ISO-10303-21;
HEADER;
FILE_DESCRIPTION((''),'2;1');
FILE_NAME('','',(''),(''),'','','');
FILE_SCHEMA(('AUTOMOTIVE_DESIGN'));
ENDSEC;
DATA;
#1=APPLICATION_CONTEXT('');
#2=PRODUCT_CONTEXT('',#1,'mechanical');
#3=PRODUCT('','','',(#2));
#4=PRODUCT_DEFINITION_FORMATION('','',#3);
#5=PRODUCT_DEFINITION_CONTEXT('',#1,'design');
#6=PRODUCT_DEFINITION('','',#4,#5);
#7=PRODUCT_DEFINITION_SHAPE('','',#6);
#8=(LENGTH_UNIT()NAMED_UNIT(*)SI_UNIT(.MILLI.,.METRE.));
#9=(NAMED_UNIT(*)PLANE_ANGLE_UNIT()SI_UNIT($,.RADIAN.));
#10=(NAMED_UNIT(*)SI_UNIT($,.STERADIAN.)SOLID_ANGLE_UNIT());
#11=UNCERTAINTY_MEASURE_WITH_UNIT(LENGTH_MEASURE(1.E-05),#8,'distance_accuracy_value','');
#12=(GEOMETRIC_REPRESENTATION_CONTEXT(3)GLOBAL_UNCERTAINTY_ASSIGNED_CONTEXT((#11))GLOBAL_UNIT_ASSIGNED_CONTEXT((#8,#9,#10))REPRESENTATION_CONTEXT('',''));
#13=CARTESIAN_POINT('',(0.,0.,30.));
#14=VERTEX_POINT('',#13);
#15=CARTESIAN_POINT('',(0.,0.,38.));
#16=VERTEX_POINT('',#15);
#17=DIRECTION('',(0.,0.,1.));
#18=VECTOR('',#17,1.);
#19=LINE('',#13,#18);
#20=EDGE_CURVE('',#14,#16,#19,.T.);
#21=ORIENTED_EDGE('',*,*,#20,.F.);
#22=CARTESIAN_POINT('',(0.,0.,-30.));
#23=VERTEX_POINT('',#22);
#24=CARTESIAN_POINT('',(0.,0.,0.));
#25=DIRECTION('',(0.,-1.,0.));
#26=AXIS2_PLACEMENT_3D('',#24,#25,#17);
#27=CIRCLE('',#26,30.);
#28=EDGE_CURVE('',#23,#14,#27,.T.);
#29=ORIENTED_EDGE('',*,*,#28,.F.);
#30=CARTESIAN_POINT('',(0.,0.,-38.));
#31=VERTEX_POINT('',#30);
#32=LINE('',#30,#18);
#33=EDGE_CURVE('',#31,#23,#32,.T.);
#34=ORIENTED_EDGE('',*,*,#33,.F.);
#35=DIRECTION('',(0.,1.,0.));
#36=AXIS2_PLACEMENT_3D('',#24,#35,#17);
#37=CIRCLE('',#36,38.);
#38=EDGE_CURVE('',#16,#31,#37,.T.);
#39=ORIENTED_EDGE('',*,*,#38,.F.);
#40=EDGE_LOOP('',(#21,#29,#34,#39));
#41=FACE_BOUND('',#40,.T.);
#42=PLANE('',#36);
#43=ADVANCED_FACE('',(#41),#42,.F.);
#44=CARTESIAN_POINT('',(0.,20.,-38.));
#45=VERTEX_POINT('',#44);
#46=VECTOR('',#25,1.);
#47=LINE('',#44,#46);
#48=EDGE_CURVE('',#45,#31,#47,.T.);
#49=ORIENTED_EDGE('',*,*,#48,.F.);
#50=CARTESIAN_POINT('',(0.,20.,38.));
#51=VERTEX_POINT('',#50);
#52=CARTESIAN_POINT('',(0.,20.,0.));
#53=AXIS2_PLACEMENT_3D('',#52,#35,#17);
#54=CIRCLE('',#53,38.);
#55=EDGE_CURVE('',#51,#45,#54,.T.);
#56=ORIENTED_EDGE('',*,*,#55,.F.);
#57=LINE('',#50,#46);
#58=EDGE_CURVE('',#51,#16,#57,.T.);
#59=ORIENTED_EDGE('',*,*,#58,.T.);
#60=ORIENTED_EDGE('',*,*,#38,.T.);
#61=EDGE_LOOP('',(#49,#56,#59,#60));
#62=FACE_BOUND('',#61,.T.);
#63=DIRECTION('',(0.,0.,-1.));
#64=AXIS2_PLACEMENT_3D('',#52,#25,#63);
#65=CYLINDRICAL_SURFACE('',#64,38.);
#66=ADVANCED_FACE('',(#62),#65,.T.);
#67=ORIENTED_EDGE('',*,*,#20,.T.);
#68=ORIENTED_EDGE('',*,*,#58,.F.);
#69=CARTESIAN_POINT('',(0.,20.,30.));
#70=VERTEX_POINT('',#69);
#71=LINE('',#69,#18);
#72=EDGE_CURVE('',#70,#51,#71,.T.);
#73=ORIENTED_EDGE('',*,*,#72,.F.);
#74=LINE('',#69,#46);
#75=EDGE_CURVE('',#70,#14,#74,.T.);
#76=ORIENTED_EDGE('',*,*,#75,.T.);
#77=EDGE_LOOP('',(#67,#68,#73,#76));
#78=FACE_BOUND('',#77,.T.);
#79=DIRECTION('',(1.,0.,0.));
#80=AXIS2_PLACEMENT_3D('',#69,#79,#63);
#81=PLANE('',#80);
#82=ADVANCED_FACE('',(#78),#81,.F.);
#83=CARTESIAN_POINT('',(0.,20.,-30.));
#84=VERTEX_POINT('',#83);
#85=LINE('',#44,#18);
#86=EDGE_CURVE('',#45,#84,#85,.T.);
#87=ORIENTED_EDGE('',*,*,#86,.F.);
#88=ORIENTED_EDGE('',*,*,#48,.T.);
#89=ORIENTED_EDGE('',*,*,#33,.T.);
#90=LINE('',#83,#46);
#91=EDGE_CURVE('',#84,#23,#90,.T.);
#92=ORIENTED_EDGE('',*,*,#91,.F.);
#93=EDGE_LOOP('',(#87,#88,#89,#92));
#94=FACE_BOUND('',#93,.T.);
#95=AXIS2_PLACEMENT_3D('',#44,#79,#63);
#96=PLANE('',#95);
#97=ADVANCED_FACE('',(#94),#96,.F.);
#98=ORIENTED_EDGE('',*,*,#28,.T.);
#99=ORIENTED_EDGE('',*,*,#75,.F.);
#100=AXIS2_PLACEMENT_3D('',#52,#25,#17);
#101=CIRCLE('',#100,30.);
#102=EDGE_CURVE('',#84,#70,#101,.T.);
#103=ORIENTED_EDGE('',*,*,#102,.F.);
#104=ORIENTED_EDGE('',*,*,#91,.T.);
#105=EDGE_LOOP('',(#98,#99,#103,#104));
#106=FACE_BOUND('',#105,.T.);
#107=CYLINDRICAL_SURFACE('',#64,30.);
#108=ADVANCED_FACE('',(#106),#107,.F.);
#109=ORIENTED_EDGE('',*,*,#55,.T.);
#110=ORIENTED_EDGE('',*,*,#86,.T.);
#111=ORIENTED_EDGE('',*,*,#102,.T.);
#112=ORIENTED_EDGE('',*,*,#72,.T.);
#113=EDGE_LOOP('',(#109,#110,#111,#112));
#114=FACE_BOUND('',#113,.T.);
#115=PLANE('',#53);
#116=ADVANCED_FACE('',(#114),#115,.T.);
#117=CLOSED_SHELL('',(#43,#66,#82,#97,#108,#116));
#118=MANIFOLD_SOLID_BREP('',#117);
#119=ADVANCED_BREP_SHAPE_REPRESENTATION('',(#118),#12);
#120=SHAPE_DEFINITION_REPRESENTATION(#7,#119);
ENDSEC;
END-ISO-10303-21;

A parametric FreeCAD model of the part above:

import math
import FreeCAD as App
import Part
import Sketcher

V = App.Vector

doc = App.newDocument("Part")
params = doc.addObject("Spreadsheet::Sheet", "Params")
for row, (alias, value) in enumerate([
    ("sketch1_radius", "30 mm"),
    ("sketch1_radius2", "38 mm"),
    ("pad1_length", "20 mm"),
], start=1):
    params.set(f"A{row}", alias)
    params.set(f"B{row}", "=" + value)
    params.setAlias(f"B{row}", alias)

body = doc.addObject("PartDesign::Body", "Body")

sketch1 = doc.addObject("Sketcher::SketchObject", "Sketch")
body.addObject(sketch1)
sketch1.AttachmentSupport = (doc.XZ_Plane, [""])
sketch1.MapMode = "FlatFace"
sketch1.addGeometry([
    Part.LineSegment(V(0, -38, 0), V(0, -30, 0)),
    Part.ArcOfCircle(Part.Circle(V(0, 0, 0), V(0, 0, 1), 30), math.radians(-90), math.radians(90)),
    Part.LineSegment(V(0, 30, 0), V(0, 38, 0)),
    Part.ArcOfCircle(Part.Circle(V(0, 0, 0), V(0, 0, 1), 38), math.radians(-90), math.radians(90)),
], False)
sketch1.addConstraint([
    Sketcher.Constraint("Coincident", 0, 2, 1, 1),
    Sketcher.Constraint("Coincident", 1, 2, 2, 1),
    Sketcher.Constraint("Coincident", 2, 2, 3, 2),
    Sketcher.Constraint("Coincident", 3, 1, 0, 1),
    Sketcher.Constraint("Vertical", 0),
    Sketcher.Constraint("Vertical", 2),
    Sketcher.Constraint("Coincident", 1, 3, -1, 1),
    Sketcher.Constraint("Coincident", 3, 3, -1, 1),
    Sketcher.Constraint("PointOnObject", 0, 2, -2),
    Sketcher.Constraint("PointOnObject", 1, 2, -2),
    Sketcher.Constraint("Radius", 1, 30.0),
    Sketcher.Constraint("Radius", 3, 38.0),
])
sketch1.setExpression("Constraints[10]", "Params.sketch1_radius")
sketch1.setExpression("Constraints[11]", "Params.sketch1_radius2")
pad1 = doc.addObject("PartDesign::Pad", "Pad")
body.addObject(pad1)
pad1.Profile = sketch1
pad1.setExpression("Length", "Params.pad1_length")
pad1.Reversed = True

doc.recompute()
